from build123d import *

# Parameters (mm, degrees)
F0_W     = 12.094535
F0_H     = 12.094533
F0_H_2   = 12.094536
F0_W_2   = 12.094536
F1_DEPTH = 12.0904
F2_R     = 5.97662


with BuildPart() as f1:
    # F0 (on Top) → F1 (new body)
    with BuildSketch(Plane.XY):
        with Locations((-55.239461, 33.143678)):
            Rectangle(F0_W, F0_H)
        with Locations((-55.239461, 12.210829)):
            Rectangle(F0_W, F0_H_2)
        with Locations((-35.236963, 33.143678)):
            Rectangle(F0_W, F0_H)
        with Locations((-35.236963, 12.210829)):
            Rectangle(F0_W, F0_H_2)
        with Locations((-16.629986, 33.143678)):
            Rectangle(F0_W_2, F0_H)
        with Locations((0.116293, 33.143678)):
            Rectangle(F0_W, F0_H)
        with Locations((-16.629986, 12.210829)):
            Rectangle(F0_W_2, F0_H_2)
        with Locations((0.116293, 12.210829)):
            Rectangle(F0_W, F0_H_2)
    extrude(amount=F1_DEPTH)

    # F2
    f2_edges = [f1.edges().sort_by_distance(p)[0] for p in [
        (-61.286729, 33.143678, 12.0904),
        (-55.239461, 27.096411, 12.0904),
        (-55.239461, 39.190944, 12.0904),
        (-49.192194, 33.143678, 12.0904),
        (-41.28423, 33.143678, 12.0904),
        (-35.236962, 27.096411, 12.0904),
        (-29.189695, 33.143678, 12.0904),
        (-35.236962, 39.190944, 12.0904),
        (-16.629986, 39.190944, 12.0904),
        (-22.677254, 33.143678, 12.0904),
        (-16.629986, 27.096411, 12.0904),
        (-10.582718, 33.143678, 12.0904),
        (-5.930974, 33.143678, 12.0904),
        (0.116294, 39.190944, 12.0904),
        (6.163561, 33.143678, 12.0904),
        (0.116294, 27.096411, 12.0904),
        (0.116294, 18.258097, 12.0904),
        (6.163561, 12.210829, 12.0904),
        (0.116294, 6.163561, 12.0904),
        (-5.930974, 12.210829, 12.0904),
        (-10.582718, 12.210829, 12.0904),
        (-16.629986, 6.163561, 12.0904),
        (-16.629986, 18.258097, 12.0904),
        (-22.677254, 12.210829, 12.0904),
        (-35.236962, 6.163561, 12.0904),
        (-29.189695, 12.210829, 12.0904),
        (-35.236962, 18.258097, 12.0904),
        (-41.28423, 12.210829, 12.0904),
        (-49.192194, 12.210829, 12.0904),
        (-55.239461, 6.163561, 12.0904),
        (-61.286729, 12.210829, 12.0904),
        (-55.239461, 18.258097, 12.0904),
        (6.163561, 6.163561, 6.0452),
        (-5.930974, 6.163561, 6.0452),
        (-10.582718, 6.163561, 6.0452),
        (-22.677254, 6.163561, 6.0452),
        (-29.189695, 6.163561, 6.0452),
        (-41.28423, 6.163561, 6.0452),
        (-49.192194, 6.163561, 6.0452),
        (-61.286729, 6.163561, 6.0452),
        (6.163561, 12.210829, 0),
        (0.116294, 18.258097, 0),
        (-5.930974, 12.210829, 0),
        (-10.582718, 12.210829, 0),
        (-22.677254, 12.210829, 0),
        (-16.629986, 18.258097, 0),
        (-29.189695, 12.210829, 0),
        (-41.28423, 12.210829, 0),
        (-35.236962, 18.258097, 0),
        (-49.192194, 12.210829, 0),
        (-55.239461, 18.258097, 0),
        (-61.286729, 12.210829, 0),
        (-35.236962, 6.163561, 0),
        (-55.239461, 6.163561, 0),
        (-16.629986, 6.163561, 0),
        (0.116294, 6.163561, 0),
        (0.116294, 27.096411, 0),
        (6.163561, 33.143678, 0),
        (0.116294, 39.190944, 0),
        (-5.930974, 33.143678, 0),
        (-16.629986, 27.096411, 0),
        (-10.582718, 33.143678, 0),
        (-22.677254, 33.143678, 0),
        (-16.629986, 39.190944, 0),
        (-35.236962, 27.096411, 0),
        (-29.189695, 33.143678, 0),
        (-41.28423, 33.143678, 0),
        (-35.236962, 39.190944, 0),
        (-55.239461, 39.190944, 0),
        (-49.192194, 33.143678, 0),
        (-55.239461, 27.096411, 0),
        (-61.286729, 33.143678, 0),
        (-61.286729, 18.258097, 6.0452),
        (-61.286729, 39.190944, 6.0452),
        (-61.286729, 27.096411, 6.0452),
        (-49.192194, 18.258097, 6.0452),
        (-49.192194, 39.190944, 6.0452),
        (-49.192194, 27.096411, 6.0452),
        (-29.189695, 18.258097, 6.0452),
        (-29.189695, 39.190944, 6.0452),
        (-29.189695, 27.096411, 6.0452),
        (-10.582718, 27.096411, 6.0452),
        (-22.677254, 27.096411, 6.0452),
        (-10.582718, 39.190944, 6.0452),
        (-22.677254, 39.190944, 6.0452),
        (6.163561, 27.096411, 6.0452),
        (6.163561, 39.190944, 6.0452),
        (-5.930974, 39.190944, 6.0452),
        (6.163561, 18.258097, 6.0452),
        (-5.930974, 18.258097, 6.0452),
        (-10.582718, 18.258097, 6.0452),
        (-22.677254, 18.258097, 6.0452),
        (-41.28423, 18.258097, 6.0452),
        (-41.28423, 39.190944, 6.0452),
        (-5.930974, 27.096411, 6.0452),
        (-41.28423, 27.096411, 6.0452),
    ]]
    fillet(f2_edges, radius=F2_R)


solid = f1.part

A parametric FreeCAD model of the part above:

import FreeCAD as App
import Part
import Sketcher

V = App.Vector
Q = App.Units.Quantity

doc = App.newDocument("Part")
body = doc.addObject("PartDesign::Body", "Body")
body.AllowCompound = True

sketch1 = body.newObject("Sketcher::SketchObject", "Sketch")
sketch1.AttachmentSupport = (doc.getObject("XY_Plane"), [""])
sketch1.MapMode = "FlatFace"
sketch1.addGeometry(Part.LineSegment(V(-61.286729, 39.190945, 0), V(-61.286729, 27.096411, 0)), False)
sketch1.addGeometry(Part.LineSegment(V(-61.286729, 27.096411, 0), V(-49.192194, 27.096411, 0)), False)
sketch1.addGeometry(Part.LineSegment(V(-49.192194, 27.096411, 0), V(-49.192194, 39.190945, 0)), False)
sketch1.addGeometry(Part.LineSegment(V(-49.192194, 39.190945, 0), V(-61.286729, 39.190945, 0)), False)
sketch1.addGeometry(Part.LineSegment(V(-61.286729, 18.258097, 0), V(-61.286729, 6.163561, 0)), False)
sketch1.addGeometry(Part.LineSegment(V(-61.286729, 6.163561, 0), V(-49.192194, 6.163561, 0)), False)
sketch1.addGeometry(Part.LineSegment(V(-49.192194, 6.163561, 0), V(-49.192194, 18.258097, 0)), False)
sketch1.addGeometry(Part.LineSegment(V(-49.192194, 18.258097, 0), V(-61.286729, 18.258097, 0)), False)
sketch1.addGeometry(Part.LineSegment(V(-41.28423, 39.190945, 0), V(-41.28423, 27.096411, 0)), False)
sketch1.addGeometry(Part.LineSegment(V(-41.28423, 27.096411, 0), V(-29.189695, 27.096411, 0)), False)
sketch1.addGeometry(Part.LineSegment(V(-29.189695, 27.096411, 0), V(-29.189695, 39.190945, 0)), False)
sketch1.addGeometry(Part.LineSegment(V(-29.189695, 39.190945, 0), V(-41.28423, 39.190945, 0)), False)
sketch1.addGeometry(Part.LineSegment(V(-41.28423, 18.258097, 0), V(-41.28423, 6.163561, 0)), False)
sketch1.addGeometry(Part.LineSegment(V(-41.28423, 6.163561, 0), V(-29.189695, 6.163561, 0)), False)
sketch1.addGeometry(Part.LineSegment(V(-29.189695, 6.163561, 0), V(-29.189695, 18.258097, 0)), False)
sketch1.addGeometry(Part.LineSegment(V(-29.189695, 18.258097, 0), V(-41.28423, 18.258097, 0)), False)
sketch1.addGeometry(Part.LineSegment(V(-22.677254, 39.190945, 0), V(-22.677254, 27.096411, 0)), False)
sketch1.addGeometry(Part.LineSegment(V(-22.677254, 27.096411, 0), V(-10.582718, 27.096411, 0)), False)
sketch1.addGeometry(Part.LineSegment(V(-10.582718, 27.096411, 0), V(-10.582718, 39.190945, 0)), False)
sketch1.addGeometry(Part.LineSegment(V(-10.582718, 39.190945, 0), V(-22.677254, 39.190945, 0)), False)
sketch1.addGeometry(Part.LineSegment(V(-5.930974, 39.190945, 0), V(-5.930974, 27.096411, 0)), False)
sketch1.addGeometry(Part.LineSegment(V(-5.930974, 27.096411, 0), V(6.16356, 27.096411, 0)), False)
sketch1.addGeometry(Part.LineSegment(V(6.16356, 27.096411, 0), V(6.16356, 39.190945, 0)), False)
sketch1.addGeometry(Part.LineSegment(V(6.16356, 39.190945, 0), V(-5.930974, 39.190945, 0)), False)
sketch1.addGeometry(Part.LineSegment(V(-22.677254, 18.258097, 0), V(-22.677254, 6.163561, 0)), False)
sketch1.addGeometry(Part.LineSegment(V(-22.677254, 6.163561, 0), V(-10.582718, 6.163561, 0)), False)
sketch1.addGeometry(Part.LineSegment(V(-10.582718, 6.163561, 0), V(-10.582718, 18.258097, 0)), False)
sketch1.addGeometry(Part.LineSegment(V(-10.582718, 18.258097, 0), V(-22.677254, 18.258097, 0)), False)
sketch1.addGeometry(Part.LineSegment(V(-5.930974, 18.258097, 0), V(-5.930974, 6.163561, 0)), False)
sketch1.addGeometry(Part.LineSegment(V(-5.930974, 6.163561, 0), V(6.16356, 6.163561, 0)), False)
sketch1.addGeometry(Part.LineSegment(V(6.16356, 6.163561, 0), V(6.16356, 18.258097, 0)), False)
sketch1.addGeometry(Part.LineSegment(V(6.16356, 18.258097, 0), V(-5.930974, 18.258097, 0)), False)
sketch1.addConstraint(Sketcher.Constraint("Coincident", 0, 2, 1, 1))
sketch1.addConstraint(Sketcher.Constraint("Coincident", 1, 2, 2, 1))
sketch1.addConstraint(Sketcher.Constraint("Coincident", 2, 2, 3, 1))
sketch1.addConstraint(Sketcher.Constraint("Coincident", 3, 2, 0, 1))
sketch1.addConstraint(Sketcher.Constraint("Coincident", 4, 2, 5, 1))
sketch1.addConstraint(Sketcher.Constraint("Coincident", 5, 2, 6, 1))
sketch1.addConstraint(Sketcher.Constraint("Coincident", 6, 2, 7, 1))
sketch1.addConstraint(Sketcher.Constraint("Coincident", 7, 2, 4, 1))
sketch1.addConstraint(Sketcher.Constraint("Coincident", 8, 2, 9, 1))
sketch1.addConstraint(Sketcher.Constraint("Coincident", 9, 2, 10, 1))
sketch1.addConstraint(Sketcher.Constraint("Coincident", 10, 2, 11, 1))
sketch1.addConstraint(Sketcher.Constraint("Coincident", 11, 2, 8, 1))
sketch1.addConstraint(Sketcher.Constraint("Coincident", 12, 2, 13, 1))
sketch1.addConstraint(Sketcher.Constraint("Coincident", 13, 2, 14, 1))
sketch1.addConstraint(Sketcher.Constraint("Coincident", 14, 2, 15, 1))
sketch1.addConstraint(Sketcher.Constraint("Coincident", 15, 2, 12, 1))
sketch1.addConstraint(Sketcher.Constraint("Coincident", 16, 2, 17, 1))
sketch1.addConstraint(Sketcher.Constraint("Coincident", 17, 2, 18, 1))
sketch1.addConstraint(Sketcher.Constraint("Coincident", 18, 2, 19, 1))
sketch1.addConstraint(Sketcher.Constraint("Coincident", 19, 2, 16, 1))
sketch1.addConstraint(Sketcher.Constraint("Coincident", 20, 2, 21, 1))
sketch1.addConstraint(Sketcher.Constraint("Coincident", 21, 2, 22, 1))
sketch1.addConstraint(Sketcher.Constraint("Coincident", 22, 2, 23, 1))
sketch1.addConstraint(Sketcher.Constraint("Coincident", 23, 2, 20, 1))
sketch1.addConstraint(Sketcher.Constraint("Coincident", 24, 2, 25, 1))
sketch1.addConstraint(Sketcher.Constraint("Coincident", 25, 2, 26, 1))
sketch1.addConstraint(Sketcher.Constraint("Coincident", 26, 2, 27, 1))
sketch1.addConstraint(Sketcher.Constraint("Coincident", 27, 2, 24, 1))
sketch1.addConstraint(Sketcher.Constraint("Coincident", 28, 2, 29, 1))
sketch1.addConstraint(Sketcher.Constraint("Coincident", 29, 2, 30, 1))
sketch1.addConstraint(Sketcher.Constraint("Coincident", 30, 2, 31, 1))
sketch1.addConstraint(Sketcher.Constraint("Coincident", 31, 2, 28, 1))
sketch1.addConstraint(Sketcher.Constraint("Vertical", 0))
sketch1.addConstraint(Sketcher.Constraint("Horizontal", 1))
sketch1.addConstraint(Sketcher.Constraint("Vertical", 2))
sketch1.addConstraint(Sketcher.Constraint("Horizontal", 3))
sketch1.addConstraint(Sketcher.Constraint("Vertical", 4))
sketch1.addConstraint(Sketcher.Constraint("Horizontal", 5))
sketch1.addConstraint(Sketcher.Constraint("Vertical", 6))
sketch1.addConstraint(Sketcher.Constraint("Horizontal", 7))
sketch1.addConstraint(Sketcher.Constraint("Vertical", 8))
sketch1.addConstraint(Sketcher.Constraint("Horizontal", 9))
sketch1.addConstraint(Sketcher.Constraint("Vertical", 10))
sketch1.addConstraint(Sketcher.Constraint("Horizontal", 11))
sketch1.addConstraint(Sketcher.Constraint("Vertical", 12))
sketch1.addConstraint(Sketcher.Constraint("Horizontal", 13))
sketch1.addConstraint(Sketcher.Constraint("Vertical", 14))
sketch1.addConstraint(Sketcher.Constraint("Horizontal", 15))
sketch1.addConstraint(Sketcher.Constraint("Vertical", 16))
sketch1.addConstraint(Sketcher.Constraint("Horizontal", 17))
sketch1.addConstraint(Sketcher.Constraint("Vertical", 18))
sketch1.addConstraint(Sketcher.Constraint("Horizontal", 19))
sketch1.addConstraint(Sketcher.Constraint("Vertical", 20))
sketch1.addConstraint(Sketcher.Constraint("Horizontal", 21))
sketch1.addConstraint(Sketcher.Constraint("Vertical", 22))
sketch1.addConstraint(Sketcher.Constraint("Horizontal", 23))
sketch1.addConstraint(Sketcher.Constraint("Vertical", 24))
sketch1.addConstraint(Sketcher.Constraint("Horizontal", 25))
sketch1.addConstraint(Sketcher.Constraint("Vertical", 26))
sketch1.addConstraint(Sketcher.Constraint("Horizontal", 27))
sketch1.addConstraint(Sketcher.Constraint("Vertical", 28))
sketch1.addConstraint(Sketcher.Constraint("Horizontal", 29))
sketch1.addConstraint(Sketcher.Constraint("Vertical", 30))
sketch1.addConstraint(Sketcher.Constraint("Horizontal", 31))
sketch1.addConstraint(Sketcher.Constraint("Horizontal", 1, 2, 8, 2))
sketch1.addConstraint(Sketcher.Constraint("Horizontal", 3, 2, 10, 2))
sketch1.addConstraint(Sketcher.Constraint("Horizontal", 5, 2, 12, 2))
sketch1.addConstraint(Sketcher.Constraint("Horizontal", 7, 2, 14, 2))
sketch1.addConstraint(Sketcher.Constraint("Horizontal", 9, 2, 16, 2))
sketch1.addConstraint(Sketcher.Constraint("Horizontal", 11, 2, 18, 2))
sketch1.addConstraint(Sketcher.Constraint("Horizontal", 17, 2, 20, 2))
sketch1.addConstraint(Sketcher.Constraint("Horizontal", 19, 2, 22, 2))
sketch1.addConstraint(Sketcher.Constraint("Horizontal", 13, 2, 24, 2))
sketch1.addConstraint(Sketcher.Constraint("Horizontal", 15, 2, 26, 2))
sketch1.addConstraint(Sketcher.Constraint("Horizontal", 25, 2, 28, 2))
sketch1.addConstraint(Sketcher.Constraint("Horizontal", 27, 2, 30, 2))
sketch1.addConstraint(Sketcher.Constraint("Vertical", 3, 2, 4, 2))
sketch1.addConstraint(Sketcher.Constraint("Vertical", 2, 2, 5, 2))
sketch1.addConstraint(Sketcher.Constraint("Vertical", 11, 2, 12, 2))
sketch1.addConstraint(Sketcher.Constraint("Vertical", 10, 2, 13, 2))
sketch1.addConstraint(Sketcher.Constraint("Vertical", 19, 2, 24, 2))
sketch1.addConstraint(Sketcher.Constraint("Vertical", 18, 2, 25, 2))
sketch1.addConstraint(Sketcher.Constraint("Vertical", 23, 2, 28, 2))
sketch1.addConstraint(Sketcher.Constraint("Vertical", 22, 2, 29, 2))
sketch1.addConstraint(Sketcher.Constraint("Equal", 7, 9))
sketch1.addConstraint(Sketcher.Constraint("Equal", 15, 17))
sketch1.addConstraint(Sketcher.Constraint("Equal", 19, 21))
sketch1.addConstraint(Sketcher.Constraint("Equal", 31, 0))
sketch1.addConstraint(Sketcher.Constraint("Equal", 31, 4))
sketch1.addConstraint(Sketcher.Constraint("DistanceX", 0, 2, 8, 2, Q("0.7874999 in")))
sketch1.addConstraint(Sketcher.Constraint("DistanceX", 1, 1, 1, 2, Q("12.094535 mm")))
sketch1.addConstraint(Sketcher.Constraint("DistanceX", 0, 2, -1, 1, Q("61.286729 mm")))
sketch1.addConstraint(Sketcher.Constraint("DistanceY", -1, 1, 0, 2, Q("27.096411 mm")))
sketch1.addConstraint(Sketcher.Constraint("DistanceY", -1, 1, 4, 2, Q("6.163561 mm")))
sketch1.addConstraint(Sketcher.Constraint("DistanceX", -1, 1, 21, 2, Q("6.16356 mm")))
sketch1.addConstraint(Sketcher.Constraint("DistanceX", 9, 2, 16, 2, Q("6.512441 mm")))
pad1 = body.newObject("PartDesign::Pad", "Pad")
pad1.Profile = sketch1
pad1.Length = Q("0.476 in")
doc.recompute()

fillet = body.newObject("PartDesign::Fillet", "Fillet")
fillet.Base = (pad1, ["Edge1"])
fillet.UseAllEdges = True
fillet.Radius = Q("0.2353 in")

doc.recompute()
